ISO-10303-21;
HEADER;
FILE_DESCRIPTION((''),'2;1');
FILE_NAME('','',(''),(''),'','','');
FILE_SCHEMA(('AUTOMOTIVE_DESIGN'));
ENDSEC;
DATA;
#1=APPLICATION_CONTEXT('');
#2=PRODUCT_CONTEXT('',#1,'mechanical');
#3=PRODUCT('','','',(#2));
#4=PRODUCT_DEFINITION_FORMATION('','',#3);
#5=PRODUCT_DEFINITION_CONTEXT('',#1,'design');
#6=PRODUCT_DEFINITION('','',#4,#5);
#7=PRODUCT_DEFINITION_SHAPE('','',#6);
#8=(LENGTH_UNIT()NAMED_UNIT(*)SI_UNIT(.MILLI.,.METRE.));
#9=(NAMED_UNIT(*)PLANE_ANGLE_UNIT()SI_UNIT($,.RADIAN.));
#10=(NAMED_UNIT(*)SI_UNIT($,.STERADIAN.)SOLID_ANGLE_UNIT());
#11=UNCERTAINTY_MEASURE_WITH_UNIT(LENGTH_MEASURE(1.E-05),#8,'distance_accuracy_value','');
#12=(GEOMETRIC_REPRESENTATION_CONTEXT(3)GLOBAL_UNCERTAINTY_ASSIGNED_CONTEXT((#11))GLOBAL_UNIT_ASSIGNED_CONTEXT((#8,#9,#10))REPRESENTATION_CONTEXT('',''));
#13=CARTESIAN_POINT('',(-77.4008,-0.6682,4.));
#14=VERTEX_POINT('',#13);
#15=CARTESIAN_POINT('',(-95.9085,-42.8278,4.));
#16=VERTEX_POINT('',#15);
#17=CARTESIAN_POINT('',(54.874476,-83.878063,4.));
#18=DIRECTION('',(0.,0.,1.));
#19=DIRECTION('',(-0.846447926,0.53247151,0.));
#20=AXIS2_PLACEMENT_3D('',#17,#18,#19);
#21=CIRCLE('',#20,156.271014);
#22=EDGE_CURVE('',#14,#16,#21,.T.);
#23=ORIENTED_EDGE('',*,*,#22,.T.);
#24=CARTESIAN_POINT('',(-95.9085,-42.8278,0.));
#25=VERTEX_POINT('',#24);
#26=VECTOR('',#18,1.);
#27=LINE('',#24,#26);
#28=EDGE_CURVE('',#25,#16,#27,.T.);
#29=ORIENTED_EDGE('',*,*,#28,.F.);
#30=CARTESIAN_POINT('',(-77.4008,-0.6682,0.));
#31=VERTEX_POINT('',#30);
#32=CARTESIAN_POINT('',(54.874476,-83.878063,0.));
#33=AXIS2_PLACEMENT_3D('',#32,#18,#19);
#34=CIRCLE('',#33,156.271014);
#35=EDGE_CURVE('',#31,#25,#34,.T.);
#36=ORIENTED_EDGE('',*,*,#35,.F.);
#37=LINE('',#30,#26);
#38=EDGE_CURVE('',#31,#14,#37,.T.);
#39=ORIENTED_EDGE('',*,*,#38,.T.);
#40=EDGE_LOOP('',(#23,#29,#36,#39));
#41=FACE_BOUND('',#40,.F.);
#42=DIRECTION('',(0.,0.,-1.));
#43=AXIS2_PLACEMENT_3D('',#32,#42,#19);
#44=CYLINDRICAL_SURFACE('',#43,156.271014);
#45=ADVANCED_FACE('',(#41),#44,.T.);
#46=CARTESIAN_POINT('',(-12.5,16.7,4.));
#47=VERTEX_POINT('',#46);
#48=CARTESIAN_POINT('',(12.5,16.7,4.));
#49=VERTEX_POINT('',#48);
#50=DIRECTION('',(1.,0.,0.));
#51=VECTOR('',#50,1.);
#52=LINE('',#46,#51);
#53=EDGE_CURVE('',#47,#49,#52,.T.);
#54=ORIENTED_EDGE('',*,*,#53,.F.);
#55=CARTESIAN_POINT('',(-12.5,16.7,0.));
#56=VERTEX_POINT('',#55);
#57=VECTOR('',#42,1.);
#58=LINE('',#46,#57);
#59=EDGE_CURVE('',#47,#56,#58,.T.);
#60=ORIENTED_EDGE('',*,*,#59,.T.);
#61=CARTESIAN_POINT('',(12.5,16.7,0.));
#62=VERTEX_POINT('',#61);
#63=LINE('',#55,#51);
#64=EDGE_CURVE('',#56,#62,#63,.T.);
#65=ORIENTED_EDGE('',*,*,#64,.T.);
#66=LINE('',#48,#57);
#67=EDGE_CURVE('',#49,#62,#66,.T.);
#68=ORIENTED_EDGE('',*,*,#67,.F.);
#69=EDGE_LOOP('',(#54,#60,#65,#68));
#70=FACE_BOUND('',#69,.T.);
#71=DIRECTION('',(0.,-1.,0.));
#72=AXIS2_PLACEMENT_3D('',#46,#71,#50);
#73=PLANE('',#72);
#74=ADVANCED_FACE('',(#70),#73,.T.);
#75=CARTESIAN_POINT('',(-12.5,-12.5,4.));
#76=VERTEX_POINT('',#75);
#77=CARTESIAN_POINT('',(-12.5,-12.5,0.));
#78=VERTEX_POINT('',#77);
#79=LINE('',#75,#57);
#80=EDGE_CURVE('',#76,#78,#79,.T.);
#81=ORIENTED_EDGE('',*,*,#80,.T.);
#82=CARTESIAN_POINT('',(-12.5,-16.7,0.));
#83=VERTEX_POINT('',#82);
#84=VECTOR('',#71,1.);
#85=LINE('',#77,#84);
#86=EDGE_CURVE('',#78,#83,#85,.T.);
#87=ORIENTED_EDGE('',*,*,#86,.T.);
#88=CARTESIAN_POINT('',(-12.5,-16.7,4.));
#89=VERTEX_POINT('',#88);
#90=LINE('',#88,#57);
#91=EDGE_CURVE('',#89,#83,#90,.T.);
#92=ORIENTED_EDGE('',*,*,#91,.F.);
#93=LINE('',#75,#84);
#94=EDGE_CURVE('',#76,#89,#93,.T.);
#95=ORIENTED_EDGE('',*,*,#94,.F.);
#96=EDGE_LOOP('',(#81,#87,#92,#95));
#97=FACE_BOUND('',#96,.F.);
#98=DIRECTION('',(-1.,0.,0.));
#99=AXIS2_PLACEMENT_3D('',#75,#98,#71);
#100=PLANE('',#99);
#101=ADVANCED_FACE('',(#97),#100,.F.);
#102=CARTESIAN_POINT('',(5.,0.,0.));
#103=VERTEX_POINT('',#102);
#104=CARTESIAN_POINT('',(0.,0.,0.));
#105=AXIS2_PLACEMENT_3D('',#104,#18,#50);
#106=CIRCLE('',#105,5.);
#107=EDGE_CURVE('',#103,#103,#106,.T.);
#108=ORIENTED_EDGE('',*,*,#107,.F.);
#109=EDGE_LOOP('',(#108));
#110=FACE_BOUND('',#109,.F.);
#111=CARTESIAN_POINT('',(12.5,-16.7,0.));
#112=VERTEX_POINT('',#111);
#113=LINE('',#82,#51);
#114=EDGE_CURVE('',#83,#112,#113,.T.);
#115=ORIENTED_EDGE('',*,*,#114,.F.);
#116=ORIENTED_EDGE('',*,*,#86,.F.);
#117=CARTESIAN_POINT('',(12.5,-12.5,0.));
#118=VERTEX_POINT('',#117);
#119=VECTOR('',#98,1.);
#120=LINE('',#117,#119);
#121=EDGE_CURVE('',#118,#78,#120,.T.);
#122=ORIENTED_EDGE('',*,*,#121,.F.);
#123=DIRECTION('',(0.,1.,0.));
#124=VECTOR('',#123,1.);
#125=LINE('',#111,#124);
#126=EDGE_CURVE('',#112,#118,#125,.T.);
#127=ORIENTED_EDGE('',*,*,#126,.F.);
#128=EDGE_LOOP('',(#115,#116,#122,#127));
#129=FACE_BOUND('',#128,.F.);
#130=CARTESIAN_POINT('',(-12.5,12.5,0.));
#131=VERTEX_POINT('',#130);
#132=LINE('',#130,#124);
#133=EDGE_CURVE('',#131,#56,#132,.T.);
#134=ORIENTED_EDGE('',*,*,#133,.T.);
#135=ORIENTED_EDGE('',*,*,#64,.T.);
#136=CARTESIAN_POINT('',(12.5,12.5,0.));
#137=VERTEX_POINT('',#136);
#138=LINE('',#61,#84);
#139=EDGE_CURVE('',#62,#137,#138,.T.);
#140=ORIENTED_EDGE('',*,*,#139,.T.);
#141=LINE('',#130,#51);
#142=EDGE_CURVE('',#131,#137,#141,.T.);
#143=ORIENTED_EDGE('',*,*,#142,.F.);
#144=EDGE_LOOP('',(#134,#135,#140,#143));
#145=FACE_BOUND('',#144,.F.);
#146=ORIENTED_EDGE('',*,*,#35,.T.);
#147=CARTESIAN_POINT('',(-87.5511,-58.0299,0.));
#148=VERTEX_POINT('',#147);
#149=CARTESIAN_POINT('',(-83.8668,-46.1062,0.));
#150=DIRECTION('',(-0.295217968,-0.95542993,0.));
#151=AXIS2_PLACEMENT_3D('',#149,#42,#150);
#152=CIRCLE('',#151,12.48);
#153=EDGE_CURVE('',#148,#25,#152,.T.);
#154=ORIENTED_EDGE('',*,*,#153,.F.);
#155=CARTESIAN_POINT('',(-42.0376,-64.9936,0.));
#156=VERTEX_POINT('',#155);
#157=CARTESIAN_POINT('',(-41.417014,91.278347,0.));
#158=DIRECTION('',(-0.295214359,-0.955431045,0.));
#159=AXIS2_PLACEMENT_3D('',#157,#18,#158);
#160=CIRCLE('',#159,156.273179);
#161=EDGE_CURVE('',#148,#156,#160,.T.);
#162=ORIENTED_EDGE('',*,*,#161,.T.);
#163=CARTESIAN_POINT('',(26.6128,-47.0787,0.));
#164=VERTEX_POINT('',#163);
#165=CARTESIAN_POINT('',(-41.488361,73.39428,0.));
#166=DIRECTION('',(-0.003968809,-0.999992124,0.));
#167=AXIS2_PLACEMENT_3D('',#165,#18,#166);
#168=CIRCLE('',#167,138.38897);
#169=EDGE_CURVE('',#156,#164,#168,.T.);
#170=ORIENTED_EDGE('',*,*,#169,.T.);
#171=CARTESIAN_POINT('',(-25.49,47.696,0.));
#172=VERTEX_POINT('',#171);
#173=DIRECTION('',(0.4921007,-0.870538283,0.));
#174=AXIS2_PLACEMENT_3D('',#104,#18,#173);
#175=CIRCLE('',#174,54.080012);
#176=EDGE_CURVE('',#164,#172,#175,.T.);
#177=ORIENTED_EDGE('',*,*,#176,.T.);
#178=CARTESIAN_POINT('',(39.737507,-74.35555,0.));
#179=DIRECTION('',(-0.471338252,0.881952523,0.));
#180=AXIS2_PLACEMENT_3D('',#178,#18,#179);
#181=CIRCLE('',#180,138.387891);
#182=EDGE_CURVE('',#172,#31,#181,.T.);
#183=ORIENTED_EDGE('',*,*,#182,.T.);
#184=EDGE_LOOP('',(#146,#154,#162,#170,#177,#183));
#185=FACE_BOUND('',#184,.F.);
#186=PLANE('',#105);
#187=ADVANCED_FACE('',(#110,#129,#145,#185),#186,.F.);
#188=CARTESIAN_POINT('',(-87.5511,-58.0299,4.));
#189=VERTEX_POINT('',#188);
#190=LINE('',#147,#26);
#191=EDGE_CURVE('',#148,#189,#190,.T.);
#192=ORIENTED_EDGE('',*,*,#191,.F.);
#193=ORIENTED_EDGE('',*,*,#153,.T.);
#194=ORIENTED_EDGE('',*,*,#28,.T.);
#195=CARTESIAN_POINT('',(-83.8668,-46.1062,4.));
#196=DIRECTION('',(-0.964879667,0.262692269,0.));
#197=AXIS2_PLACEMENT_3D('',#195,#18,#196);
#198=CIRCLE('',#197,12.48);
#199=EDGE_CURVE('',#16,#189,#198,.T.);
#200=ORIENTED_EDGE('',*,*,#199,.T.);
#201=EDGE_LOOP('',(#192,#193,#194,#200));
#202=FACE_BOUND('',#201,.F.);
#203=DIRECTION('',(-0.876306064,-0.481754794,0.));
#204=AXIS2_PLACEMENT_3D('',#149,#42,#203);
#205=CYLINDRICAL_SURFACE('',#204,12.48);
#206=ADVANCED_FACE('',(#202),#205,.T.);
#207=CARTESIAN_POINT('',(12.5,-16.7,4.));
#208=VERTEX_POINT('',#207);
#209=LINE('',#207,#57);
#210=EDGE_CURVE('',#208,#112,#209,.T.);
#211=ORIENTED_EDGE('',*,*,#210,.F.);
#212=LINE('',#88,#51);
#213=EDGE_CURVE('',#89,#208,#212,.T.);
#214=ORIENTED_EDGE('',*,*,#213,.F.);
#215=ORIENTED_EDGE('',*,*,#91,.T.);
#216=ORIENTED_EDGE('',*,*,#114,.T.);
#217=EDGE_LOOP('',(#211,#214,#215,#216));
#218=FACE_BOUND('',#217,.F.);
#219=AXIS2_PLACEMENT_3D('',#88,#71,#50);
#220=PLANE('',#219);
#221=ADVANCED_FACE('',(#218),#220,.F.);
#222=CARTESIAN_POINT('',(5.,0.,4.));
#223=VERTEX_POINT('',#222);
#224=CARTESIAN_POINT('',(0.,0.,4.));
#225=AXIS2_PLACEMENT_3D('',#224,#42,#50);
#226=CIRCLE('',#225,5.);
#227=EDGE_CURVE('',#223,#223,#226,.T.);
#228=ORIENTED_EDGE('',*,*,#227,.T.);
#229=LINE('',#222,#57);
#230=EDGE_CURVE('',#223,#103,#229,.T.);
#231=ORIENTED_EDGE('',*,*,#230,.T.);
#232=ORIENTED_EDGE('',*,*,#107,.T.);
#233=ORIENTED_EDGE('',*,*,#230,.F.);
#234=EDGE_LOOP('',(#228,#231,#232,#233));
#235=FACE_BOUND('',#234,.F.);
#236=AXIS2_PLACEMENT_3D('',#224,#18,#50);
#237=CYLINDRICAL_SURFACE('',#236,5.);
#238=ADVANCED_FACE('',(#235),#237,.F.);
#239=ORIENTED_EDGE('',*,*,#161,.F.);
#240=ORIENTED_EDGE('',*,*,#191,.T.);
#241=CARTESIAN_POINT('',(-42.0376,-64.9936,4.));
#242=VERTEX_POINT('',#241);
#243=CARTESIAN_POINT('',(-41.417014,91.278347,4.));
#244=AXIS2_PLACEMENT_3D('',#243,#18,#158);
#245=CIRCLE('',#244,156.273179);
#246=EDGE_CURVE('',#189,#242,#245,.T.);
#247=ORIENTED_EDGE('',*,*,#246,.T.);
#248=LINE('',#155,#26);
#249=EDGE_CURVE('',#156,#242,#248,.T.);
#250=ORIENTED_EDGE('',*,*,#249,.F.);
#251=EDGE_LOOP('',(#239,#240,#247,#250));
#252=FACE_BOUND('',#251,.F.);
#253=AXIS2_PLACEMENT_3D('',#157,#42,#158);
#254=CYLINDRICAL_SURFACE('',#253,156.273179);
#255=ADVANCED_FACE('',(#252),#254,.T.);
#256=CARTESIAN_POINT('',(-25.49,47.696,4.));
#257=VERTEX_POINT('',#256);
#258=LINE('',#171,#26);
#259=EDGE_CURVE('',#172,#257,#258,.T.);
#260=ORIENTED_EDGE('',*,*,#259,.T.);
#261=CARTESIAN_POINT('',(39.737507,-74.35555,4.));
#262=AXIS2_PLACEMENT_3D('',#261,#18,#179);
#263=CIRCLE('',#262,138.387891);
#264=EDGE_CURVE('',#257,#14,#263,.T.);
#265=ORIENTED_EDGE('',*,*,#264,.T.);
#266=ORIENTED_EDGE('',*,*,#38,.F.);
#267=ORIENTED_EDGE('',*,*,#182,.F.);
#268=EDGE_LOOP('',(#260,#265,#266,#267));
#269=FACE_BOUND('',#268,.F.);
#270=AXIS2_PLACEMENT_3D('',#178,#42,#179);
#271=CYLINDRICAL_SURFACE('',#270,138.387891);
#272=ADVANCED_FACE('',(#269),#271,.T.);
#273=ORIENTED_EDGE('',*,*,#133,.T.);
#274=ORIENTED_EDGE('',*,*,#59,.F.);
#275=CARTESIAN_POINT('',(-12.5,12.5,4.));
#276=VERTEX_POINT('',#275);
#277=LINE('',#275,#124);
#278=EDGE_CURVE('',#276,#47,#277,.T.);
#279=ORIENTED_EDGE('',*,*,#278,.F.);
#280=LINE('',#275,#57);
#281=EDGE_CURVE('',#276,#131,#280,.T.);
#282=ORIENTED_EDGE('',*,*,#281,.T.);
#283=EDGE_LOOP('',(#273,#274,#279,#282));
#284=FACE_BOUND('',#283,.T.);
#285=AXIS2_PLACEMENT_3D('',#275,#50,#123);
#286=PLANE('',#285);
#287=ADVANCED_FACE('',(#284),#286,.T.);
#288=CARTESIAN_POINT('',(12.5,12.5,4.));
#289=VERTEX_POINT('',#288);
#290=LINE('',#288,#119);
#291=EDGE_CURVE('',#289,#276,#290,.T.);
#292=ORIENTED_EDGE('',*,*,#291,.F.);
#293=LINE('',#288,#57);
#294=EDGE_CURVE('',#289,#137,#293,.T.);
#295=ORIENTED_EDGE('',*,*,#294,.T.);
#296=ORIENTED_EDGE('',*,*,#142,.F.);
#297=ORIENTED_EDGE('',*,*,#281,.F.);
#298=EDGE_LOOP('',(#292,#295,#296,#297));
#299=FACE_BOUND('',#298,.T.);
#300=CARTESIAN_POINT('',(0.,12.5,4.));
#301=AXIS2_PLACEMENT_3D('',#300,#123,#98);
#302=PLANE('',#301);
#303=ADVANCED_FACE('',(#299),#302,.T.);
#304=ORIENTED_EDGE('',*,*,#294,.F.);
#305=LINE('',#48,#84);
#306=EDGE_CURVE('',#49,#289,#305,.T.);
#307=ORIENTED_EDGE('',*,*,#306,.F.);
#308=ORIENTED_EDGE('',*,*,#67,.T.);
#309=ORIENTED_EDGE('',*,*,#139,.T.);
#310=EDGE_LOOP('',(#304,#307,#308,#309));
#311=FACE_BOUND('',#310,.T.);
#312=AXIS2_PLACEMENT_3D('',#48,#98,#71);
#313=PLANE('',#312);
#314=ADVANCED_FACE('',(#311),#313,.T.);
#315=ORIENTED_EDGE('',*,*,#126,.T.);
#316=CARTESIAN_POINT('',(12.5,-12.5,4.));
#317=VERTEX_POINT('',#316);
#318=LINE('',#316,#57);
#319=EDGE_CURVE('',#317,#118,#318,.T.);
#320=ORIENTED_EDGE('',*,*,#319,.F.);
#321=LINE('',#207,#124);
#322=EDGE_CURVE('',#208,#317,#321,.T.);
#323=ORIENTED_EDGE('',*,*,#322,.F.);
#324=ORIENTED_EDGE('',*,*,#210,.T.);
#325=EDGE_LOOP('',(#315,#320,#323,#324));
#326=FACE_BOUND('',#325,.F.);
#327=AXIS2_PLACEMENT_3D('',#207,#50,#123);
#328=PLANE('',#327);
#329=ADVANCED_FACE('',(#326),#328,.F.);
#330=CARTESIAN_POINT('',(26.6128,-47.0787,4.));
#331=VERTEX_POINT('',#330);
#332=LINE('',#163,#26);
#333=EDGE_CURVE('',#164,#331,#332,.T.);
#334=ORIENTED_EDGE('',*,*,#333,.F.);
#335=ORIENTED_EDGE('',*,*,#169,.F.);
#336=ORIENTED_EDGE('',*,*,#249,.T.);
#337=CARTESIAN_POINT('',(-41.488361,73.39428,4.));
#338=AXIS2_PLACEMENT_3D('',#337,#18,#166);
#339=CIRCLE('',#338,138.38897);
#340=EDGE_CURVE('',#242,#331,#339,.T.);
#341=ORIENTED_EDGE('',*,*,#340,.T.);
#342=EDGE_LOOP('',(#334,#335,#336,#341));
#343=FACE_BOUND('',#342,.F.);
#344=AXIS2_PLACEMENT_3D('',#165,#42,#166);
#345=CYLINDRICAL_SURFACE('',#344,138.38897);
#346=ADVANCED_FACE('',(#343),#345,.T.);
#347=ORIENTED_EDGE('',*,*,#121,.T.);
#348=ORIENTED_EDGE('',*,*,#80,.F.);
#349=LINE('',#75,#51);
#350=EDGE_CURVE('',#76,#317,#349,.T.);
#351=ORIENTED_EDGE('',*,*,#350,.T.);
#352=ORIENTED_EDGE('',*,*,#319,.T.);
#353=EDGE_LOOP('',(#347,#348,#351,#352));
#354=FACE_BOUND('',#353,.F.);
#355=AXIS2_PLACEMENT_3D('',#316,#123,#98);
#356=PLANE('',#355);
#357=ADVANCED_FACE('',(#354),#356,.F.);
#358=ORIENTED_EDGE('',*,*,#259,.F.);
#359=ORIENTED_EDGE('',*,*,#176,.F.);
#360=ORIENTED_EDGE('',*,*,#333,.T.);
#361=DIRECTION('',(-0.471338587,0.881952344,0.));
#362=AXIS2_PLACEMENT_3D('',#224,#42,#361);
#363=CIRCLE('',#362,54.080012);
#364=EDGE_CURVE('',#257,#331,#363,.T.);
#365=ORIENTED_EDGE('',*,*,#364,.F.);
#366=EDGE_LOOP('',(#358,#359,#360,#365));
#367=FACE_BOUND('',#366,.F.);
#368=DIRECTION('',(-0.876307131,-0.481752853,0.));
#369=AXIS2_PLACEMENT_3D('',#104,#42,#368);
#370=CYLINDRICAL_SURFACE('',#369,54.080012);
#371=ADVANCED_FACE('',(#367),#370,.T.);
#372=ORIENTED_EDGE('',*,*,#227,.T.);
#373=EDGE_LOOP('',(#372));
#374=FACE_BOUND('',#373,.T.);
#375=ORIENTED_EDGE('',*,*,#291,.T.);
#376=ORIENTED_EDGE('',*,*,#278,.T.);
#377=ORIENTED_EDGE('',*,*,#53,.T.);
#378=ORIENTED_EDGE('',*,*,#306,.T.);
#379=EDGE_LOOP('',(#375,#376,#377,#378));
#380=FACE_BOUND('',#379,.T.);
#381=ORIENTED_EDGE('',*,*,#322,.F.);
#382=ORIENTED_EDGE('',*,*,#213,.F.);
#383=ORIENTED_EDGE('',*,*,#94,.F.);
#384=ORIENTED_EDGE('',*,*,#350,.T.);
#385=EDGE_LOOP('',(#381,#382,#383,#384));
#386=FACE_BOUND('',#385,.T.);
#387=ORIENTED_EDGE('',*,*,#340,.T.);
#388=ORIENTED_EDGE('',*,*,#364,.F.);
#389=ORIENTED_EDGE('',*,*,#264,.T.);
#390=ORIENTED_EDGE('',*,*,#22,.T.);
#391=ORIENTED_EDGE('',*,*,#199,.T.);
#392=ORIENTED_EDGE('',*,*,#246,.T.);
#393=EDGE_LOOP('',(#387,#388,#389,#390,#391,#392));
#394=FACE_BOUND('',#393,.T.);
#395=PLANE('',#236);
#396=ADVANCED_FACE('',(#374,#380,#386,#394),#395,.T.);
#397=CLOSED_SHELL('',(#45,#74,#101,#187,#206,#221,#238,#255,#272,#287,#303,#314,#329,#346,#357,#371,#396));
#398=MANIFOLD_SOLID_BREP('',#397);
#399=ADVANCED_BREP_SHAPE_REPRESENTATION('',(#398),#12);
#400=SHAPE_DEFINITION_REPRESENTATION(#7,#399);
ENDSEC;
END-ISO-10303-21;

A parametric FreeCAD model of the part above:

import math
import FreeCAD as App
import Part
import Sketcher

V = App.Vector


def add_polygon(sketch, points):
    """Adds a closed chain of lines whose ends are joined by coincident constraints."""
    first, n = sketch.GeometryCount, len(points)
    for a, b in zip(points, points[1:] + points[:1]):
        sketch.addGeometry(Part.LineSegment(App.Vector(*a, 0), App.Vector(*b, 0)), False)
    for i in range(n):
        sketch.addConstraint(Sketcher.Constraint("Coincident", first + i, 2, first + (i + 1) % n, 1))

doc = App.newDocument("Part")
body = doc.addObject("PartDesign::Body", "Body")

# Sketch on XY plane
sketch1 = body.newObject("Sketcher::SketchObject", "Sketch")
sketch1.AttachmentSupport = (doc.getObject("XY_Plane"), [""])
sketch1.MapMode = "FlatFace"
sketch1.addGeometry([
    Part.ArcOfCircle(Part.Circle(V(0, 0, 0), V(0, 0, 1), 54.080012), math.radians(-60.521252), math.radians(118.121222)),  # 0
    Part.ArcOfCircle(Part.Circle(V(39.7379, -74.3561, 0), V(0, 0, 1), 138.388562), math.radians(118.121237), math.radians(147.827423)),  # 1
    Part.ArcOfCircle(Part.Circle(V(54.8753, -83.8785, 0), V(0, 0, 1), 156.271945), math.radians(147.827428), math.radians(164.770404)),  # 2
    Part.ArcOfCircle(Part.Circle(V(-83.8668, -46.1062, 0), V(0, 0, 1), 12.48), math.radians(164.770128), math.radians(252.829392)),  # 3
    Part.ArcOfCircle(Part.Circle(V(-41.417014, 91.278347, 0), V(0, 0, 1), 156.273179), math.radians(-107.170392), math.radians(-90.227531)),  # 4
    Part.ArcOfCircle(Part.Circle(V(-41.4883, 73.3938, 0), V(0, 0, 1), 138.38849), math.radians(-90.227422), math.radians(-60.521246)),  # 5
], False)
sketch1.addConstraint([
    Sketcher.Constraint("Coincident", 0, 2, 1, 1),
    Sketcher.Constraint("Coincident", 1, 2, 2, 1),
    Sketcher.Constraint("Coincident", 2, 2, 3, 1),
    Sketcher.Constraint("Coincident", 3, 2, 4, 1),
    Sketcher.Constraint("Coincident", 4, 2, 5, 1),
    Sketcher.Constraint("Coincident", 5, 2, 0, 1),
    Sketcher.Constraint("Coincident", 0, 3, -1, 1),
    Sketcher.Constraint("Radius", 0, 54.08),
    Sketcher.Constraint("Radius", 3, 12.48),
    Sketcher.Constraint("Radius", 2, 156.272),
    Sketcher.Constraint("Radius", 1, 138.3886),
    Sketcher.Constraint("Radius", 4, 156.2732),
    Sketcher.Constraint("Radius", 5, 138.3885),
    Sketcher.Constraint("DistanceY", 3, 3, 5, 3, 119.5),
    Sketcher.Constraint("DistanceX", 0, 2, -1, 1, 25.49),
    Sketcher.Constraint("DistanceY", 3, 2, -1, 1, 58.03),
    Sketcher.Constraint("DistanceY", 1, 3, 3, 3, 28.25),
    Sketcher.Constraint("DistanceX", -1, 1, 1, 3, 39.738),
    Sketcher.Constraint("DistanceX", 4, 3, -1, 1, 41.417),
    Sketcher.Constraint("DistanceX", 3, 3, 1, 2, 6.466),
    Sketcher.Constraint("DistanceX", 2, 2, 4, 2, 53.871),
    Sketcher.Constraint("DistanceX", 5, 2, 1, 3, 13.125),
    Sketcher.Constraint("DistanceX", 2, 2, -1, 1, 95.9085),
])
pad1 = body.newObject("PartDesign::Pad", "Pad")
pad1.Profile = sketch1
pad1.Length = 4

# Sketch on XY plane
sketch2 = body.newObject("Sketcher::SketchObject", "Sketch001")
sketch2.AttachmentSupport = (doc.getObject("XY_Plane"), [""])
sketch2.MapMode = "FlatFace"
sketch2.AttachmentOffset = App.Placement(V(0, 0, 4), App.Rotation())
sketch2.addGeometry(Part.Circle(V(0, 0, 0), V(0, 0, 1), 5), False)  # 0
add_polygon(sketch2, [(-12.5, 12.5), (12.5, 12.5), (12.5, 16.7), (-12.5, 16.7)])  # lines 1-4
add_polygon(sketch2, [(12.5, -12.5), (-12.5, -12.5), (-12.5, -16.7), (12.5, -16.7)])  # lines 5-8
sketch2.addConstraint([
    Sketcher.Constraint("Horizontal", 1),
    Sketcher.Constraint("Vertical", 2),
    Sketcher.Constraint("Horizontal", 3),
    Sketcher.Constraint("Vertical", 4),
    Sketcher.Constraint("Horizontal", 5),
    Sketcher.Constraint("Vertical", 6),
    Sketcher.Constraint("Horizontal", 7),
    Sketcher.Constraint("Vertical", 8),
    Sketcher.Constraint("Coincident", 0, 3, -1, 1),
    Sketcher.Constraint("Symmetric", 1, 2, 5, 2, -1, 1),
    Sketcher.Constraint("Symmetric", 3, 2, 7, 2, -1, 1),
    Sketcher.Constraint("Vertical", 4, 2, 5, 2),
    Sketcher.Constraint("Diameter", 0, 10.0),
    Sketcher.Constraint("DistanceX", 1, 1, 1, 2, 25.0),
    Sketcher.Constraint("DistanceY", 2, 1, 2, 2, 4.2),
    Sketcher.Constraint("DistanceY", 5, 2, 4, 2, 25.0),
])
pocket1 = body.newObject("PartDesign::Pocket", "Pocket")
pocket1.Profile = sketch2
pocket1.Length = 4

doc.recompute()
